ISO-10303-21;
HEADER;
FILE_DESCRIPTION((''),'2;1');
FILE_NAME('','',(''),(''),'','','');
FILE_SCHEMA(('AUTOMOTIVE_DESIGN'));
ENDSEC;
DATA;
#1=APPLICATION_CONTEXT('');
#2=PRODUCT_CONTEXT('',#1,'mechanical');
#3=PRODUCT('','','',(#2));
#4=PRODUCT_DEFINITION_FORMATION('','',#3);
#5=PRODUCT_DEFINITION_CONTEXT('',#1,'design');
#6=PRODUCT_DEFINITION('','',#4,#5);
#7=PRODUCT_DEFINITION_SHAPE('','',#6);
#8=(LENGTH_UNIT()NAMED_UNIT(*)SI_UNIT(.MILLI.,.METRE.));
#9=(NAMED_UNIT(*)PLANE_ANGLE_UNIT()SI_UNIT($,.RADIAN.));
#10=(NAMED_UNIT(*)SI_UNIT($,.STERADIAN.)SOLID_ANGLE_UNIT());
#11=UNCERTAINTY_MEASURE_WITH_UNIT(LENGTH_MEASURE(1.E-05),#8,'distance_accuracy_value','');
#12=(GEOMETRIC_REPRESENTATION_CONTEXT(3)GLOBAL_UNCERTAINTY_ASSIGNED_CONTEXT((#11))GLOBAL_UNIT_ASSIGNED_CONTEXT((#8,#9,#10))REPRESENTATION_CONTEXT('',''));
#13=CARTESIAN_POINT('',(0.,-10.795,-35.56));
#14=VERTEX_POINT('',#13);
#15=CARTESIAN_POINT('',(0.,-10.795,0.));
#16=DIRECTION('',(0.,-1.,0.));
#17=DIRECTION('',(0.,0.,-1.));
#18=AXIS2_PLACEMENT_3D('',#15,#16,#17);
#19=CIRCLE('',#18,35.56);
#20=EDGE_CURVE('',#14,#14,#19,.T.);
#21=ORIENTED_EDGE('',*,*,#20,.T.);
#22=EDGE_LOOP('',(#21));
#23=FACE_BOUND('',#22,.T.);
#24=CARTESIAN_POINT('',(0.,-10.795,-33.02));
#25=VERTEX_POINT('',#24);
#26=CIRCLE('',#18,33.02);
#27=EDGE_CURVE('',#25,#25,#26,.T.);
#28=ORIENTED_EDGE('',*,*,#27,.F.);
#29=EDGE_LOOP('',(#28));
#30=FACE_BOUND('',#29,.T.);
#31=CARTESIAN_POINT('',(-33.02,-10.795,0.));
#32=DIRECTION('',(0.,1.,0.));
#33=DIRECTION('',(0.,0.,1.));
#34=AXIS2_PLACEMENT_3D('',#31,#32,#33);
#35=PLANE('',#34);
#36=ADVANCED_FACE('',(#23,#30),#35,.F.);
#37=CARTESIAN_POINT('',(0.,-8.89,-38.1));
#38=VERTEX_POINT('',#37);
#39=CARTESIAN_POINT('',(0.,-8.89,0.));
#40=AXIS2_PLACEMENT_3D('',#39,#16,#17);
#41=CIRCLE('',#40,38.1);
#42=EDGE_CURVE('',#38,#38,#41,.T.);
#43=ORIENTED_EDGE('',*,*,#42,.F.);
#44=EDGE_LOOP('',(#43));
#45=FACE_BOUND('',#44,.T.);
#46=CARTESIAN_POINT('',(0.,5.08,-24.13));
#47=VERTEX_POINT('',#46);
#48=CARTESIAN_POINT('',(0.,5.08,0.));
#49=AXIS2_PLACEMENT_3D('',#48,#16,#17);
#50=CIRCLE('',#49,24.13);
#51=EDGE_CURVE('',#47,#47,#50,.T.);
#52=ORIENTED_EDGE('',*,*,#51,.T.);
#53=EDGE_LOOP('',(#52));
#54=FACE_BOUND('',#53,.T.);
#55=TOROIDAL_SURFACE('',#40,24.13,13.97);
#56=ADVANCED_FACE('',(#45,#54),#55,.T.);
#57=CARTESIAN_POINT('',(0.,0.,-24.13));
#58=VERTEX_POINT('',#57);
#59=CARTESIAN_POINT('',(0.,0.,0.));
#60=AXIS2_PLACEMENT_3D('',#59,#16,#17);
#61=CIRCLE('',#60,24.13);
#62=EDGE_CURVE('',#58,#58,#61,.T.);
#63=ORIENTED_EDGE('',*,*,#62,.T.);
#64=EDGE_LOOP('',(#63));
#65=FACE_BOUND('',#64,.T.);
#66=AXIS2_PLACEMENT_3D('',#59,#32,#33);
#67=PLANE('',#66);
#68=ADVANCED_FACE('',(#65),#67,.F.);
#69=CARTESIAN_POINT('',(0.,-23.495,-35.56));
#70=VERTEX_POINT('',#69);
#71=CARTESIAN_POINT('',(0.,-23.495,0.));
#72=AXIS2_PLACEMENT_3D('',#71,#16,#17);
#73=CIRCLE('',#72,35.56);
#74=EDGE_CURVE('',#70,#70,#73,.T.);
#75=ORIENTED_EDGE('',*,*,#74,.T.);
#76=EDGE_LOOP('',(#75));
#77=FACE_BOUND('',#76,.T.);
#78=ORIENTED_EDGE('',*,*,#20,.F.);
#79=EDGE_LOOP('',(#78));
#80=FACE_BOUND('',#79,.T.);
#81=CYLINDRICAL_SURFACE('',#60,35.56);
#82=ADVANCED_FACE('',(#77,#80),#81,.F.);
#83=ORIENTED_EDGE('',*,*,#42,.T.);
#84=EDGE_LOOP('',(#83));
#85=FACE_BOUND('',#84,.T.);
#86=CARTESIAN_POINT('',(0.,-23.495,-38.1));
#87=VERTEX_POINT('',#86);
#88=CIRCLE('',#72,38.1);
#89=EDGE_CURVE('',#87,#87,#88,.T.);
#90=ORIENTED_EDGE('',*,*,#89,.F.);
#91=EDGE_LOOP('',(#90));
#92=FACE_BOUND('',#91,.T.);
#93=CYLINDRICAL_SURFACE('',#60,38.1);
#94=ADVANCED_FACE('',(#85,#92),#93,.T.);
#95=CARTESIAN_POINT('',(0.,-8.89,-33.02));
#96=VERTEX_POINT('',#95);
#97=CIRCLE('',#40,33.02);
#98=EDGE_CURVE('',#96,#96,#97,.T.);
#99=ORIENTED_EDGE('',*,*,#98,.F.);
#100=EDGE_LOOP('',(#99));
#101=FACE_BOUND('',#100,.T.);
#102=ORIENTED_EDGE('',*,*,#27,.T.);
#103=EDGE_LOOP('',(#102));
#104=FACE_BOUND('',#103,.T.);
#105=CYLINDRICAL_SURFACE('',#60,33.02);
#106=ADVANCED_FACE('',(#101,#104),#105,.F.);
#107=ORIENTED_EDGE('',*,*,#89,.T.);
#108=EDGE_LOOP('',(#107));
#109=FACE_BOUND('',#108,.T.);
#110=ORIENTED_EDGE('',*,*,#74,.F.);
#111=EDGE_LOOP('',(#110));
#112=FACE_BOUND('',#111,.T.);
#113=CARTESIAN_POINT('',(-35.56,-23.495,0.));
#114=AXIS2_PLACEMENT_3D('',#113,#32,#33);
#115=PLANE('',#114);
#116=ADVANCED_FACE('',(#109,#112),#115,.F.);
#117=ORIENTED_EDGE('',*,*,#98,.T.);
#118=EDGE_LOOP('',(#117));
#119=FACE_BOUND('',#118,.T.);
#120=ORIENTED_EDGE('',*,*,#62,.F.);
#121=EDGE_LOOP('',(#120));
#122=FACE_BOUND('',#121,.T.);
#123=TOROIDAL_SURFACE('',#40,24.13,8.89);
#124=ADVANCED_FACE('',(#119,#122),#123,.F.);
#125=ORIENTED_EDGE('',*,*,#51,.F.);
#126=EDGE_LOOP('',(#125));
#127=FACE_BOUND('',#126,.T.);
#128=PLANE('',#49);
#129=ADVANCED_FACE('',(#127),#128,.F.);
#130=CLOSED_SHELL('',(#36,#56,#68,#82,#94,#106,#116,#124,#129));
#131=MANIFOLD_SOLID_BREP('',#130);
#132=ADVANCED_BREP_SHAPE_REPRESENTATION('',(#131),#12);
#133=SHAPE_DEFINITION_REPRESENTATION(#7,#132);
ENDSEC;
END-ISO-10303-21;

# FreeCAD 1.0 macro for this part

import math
import FreeCAD as App
import Part
import Sketcher

V = App.Vector
Q = App.Units.Quantity

doc = App.newDocument("Part")
body = doc.addObject("PartDesign::Body", "Body")

sketch1 = body.newObject("Sketcher::SketchObject", "Sketch")
sketch1.AttachmentSupport = (doc.getObject("XY_Plane"), [""])
sketch1.MapMode = "FlatFace"
sketch1.addGeometry([
    Part.LineSegment(V(-24.1, 0, 0), V(0, 0, 0)),
    Part.LineSegment(V(0, 0, 0), V(0, 5.1, 0)),
    Part.LineSegment(V(0, 5.1, 0), V(-24.1, 5.1, 0)),
    Part.ArcOfCircle(Part.Circle(V(-24.1, -8.9, 0), V(0, 0, 1), 14), math.radians(90), math.radians(180)),
    Part.LineSegment(V(-38.1, -8.9, 0), V(-38.1, -23.5, 0)),
    Part.LineSegment(V(-38.1, -23.5, 0), V(-35.6, -23.5, 0)),
    Part.LineSegment(V(-35.6, -23.5, 0), V(-35.6, -10.8, 0)),
    Part.LineSegment(V(-35.6, -10.8, 0), V(-33, -10.8, 0)),
    Part.LineSegment(V(-33, -10.8, 0), V(-33, -8.9, 0)),
    Part.ArcOfCircle(Part.Circle(V(-24.1, -8.9, 0), V(0, 0, 1), 8.9), math.radians(90), math.radians(180)),
], False)
sketch1.addConstraint([
    Sketcher.Constraint("Coincident", 0, 2, 1, 1),
    Sketcher.Constraint("Coincident", 1, 2, 2, 1),
    Sketcher.Constraint("Tangent", 2, 2, 3, 1),
    Sketcher.Constraint("Tangent", 3, 2, 4, 1),
    Sketcher.Constraint("Coincident", 4, 2, 5, 1),
    Sketcher.Constraint("Coincident", 5, 2, 6, 1),
    Sketcher.Constraint("Coincident", 6, 2, 7, 1),
    Sketcher.Constraint("Coincident", 7, 2, 8, 1),
    Sketcher.Constraint("Tangent", 8, 2, 9, 2),
    Sketcher.Constraint("Tangent", 9, 1, 0, 1),
    Sketcher.Constraint("Horizontal", 0),
    Sketcher.Constraint("Vertical", 1),
    Sketcher.Constraint("Horizontal", 2),
    Sketcher.Constraint("Vertical", 4),
    Sketcher.Constraint("Horizontal", 5),
    Sketcher.Constraint("Vertical", 6),
    Sketcher.Constraint("Horizontal", 7),
    Sketcher.Constraint("Vertical", 8),
    Sketcher.Constraint("Coincident", 0, 2, -1, 1),
    Sketcher.Constraint("Coincident", 9, 3, 3, 3),
    Sketcher.Constraint("Equal", 5, 7),
    Sketcher.Constraint("Radius", 3, Q("0.55 in")),
    Sketcher.Constraint("Radius", 9, Q("0.35 in")),
    Sketcher.Constraint("DistanceY", 6, 1, 6, 2, Q("0.5 in")),
    Sketcher.Constraint("DistanceX", 0, 1, 0, 2, Q("0.95 in")),
    Sketcher.Constraint("DistanceY", 4, 2, 4, 1, Q("0.575 in")),
])
revolution = body.newObject("PartDesign::Revolution", "Revolution")
revolution.Profile = sketch1
revolution.ReferenceAxis = (sketch1, ["V_Axis"])
revolution.Angle = 360

doc.recompute()
